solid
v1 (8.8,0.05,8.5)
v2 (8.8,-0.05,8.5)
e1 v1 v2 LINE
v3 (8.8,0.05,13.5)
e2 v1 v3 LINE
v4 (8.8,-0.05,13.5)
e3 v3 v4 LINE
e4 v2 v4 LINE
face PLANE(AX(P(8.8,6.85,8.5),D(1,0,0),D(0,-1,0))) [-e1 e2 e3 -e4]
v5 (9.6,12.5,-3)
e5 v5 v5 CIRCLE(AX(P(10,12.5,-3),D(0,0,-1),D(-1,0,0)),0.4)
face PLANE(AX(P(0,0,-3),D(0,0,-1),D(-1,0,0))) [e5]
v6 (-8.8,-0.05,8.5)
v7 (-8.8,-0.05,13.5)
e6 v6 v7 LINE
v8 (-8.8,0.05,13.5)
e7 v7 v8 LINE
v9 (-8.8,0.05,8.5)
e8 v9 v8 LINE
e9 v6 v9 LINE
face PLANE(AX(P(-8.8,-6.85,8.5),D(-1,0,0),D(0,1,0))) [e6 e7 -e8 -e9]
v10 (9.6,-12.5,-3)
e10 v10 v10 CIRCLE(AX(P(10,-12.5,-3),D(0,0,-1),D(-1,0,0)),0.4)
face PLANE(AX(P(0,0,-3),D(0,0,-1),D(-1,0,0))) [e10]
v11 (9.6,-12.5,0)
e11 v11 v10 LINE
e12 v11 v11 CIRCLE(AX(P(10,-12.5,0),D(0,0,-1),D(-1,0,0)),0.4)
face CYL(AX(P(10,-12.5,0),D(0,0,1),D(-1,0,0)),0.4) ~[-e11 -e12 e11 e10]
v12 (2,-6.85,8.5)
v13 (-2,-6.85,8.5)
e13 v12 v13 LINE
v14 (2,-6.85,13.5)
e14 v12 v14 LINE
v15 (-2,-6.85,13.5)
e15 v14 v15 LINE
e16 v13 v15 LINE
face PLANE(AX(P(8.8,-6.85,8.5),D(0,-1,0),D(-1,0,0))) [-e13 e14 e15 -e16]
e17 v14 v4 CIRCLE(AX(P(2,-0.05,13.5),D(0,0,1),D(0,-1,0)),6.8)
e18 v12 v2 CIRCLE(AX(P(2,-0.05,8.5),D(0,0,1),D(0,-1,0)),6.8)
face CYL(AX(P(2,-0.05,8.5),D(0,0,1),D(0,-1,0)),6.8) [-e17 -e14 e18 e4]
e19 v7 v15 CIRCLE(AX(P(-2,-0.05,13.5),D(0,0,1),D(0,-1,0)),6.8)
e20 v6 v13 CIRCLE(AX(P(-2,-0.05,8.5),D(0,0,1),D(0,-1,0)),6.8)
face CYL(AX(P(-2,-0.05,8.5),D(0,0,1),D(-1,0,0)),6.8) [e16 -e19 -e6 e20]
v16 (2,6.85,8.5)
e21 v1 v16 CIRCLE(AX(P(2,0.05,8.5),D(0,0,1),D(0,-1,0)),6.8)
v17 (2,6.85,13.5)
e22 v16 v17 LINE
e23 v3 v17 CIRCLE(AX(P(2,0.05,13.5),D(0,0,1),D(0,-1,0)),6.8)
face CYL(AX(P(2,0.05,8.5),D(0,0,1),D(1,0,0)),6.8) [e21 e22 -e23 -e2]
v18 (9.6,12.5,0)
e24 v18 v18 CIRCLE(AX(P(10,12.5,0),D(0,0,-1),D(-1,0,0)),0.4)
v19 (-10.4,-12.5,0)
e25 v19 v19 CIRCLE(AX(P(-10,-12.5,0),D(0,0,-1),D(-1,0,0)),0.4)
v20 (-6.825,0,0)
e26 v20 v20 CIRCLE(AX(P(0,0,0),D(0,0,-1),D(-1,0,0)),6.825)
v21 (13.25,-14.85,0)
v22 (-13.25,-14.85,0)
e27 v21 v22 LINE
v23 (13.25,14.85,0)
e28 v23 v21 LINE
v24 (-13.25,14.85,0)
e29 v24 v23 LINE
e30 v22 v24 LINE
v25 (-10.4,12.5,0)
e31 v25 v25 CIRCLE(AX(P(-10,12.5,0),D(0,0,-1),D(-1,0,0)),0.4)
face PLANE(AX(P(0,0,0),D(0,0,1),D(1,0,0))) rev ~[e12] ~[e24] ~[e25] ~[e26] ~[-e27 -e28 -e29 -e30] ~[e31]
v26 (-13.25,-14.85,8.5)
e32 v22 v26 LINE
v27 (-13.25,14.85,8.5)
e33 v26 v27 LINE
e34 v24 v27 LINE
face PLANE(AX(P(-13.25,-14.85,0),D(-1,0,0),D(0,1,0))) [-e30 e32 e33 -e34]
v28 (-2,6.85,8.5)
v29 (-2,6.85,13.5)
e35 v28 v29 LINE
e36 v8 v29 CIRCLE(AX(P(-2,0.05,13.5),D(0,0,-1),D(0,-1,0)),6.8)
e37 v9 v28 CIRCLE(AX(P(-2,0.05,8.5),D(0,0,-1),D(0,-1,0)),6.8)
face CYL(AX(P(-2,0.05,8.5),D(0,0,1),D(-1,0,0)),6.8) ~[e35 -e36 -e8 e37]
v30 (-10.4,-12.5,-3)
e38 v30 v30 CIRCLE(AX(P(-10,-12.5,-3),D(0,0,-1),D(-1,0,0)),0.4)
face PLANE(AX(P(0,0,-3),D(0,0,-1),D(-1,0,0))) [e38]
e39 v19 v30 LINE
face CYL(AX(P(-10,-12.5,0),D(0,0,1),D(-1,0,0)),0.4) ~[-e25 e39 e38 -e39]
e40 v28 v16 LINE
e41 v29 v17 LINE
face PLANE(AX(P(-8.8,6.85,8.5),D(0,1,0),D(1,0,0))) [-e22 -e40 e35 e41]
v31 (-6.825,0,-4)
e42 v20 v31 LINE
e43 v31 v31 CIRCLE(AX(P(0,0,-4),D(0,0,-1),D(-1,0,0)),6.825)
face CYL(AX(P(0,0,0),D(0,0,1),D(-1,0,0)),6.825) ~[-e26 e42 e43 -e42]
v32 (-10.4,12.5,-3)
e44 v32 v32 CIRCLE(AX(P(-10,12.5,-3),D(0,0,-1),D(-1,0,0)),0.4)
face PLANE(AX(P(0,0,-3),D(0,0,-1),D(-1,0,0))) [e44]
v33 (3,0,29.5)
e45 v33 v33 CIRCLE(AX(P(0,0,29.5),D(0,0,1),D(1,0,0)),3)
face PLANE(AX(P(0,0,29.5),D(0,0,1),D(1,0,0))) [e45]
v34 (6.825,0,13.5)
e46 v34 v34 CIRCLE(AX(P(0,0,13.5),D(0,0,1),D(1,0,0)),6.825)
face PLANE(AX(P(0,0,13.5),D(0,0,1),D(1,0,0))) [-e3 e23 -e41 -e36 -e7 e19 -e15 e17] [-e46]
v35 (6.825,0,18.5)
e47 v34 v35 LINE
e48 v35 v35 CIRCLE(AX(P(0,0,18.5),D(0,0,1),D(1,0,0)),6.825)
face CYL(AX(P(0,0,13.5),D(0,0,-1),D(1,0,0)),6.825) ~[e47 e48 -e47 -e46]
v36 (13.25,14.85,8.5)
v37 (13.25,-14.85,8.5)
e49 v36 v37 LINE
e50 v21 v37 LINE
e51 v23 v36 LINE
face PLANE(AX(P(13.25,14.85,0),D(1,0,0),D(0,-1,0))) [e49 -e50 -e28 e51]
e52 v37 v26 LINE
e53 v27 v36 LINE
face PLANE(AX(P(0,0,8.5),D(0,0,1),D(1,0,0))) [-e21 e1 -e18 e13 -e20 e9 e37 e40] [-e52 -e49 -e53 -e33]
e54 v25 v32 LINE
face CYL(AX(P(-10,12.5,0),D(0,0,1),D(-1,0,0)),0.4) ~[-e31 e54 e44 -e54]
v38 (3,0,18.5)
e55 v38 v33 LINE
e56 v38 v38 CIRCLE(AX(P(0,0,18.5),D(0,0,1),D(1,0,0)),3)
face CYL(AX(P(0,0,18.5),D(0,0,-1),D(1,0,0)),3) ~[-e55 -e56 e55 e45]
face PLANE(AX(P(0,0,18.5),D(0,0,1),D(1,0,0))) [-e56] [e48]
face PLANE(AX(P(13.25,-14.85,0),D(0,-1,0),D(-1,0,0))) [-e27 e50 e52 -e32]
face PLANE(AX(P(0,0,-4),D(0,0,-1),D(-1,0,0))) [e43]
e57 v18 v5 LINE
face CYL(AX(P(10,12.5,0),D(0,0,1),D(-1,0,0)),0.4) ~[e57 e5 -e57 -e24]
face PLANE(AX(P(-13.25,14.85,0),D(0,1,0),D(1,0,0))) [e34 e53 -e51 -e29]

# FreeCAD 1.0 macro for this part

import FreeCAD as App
import Part
import Sketcher

V = App.Vector


def edges_at(feature, points):
    """Names of the edges that pass closest to the given points."""
    edges = feature.Shape.Edges
    near = lambda p: min(range(len(edges)), key=lambda i: edges[i].distToShape(Part.Vertex(*p))[0])
    return sorted({f"Edge{near(p) + 1}" for p in points})


def add_polygon(sketch, points):
    """Adds a closed chain of lines whose ends are joined by coincident constraints."""
    first, n = sketch.GeometryCount, len(points)
    for a, b in zip(points, points[1:] + points[:1]):
        sketch.addGeometry(Part.LineSegment(App.Vector(*a, 0), App.Vector(*b, 0)), False)
    for i in range(n):
        sketch.addConstraint(Sketcher.Constraint("Coincident", first + i, 2, first + (i + 1) % n, 1))

doc = App.newDocument("Part")
params = doc.addObject("Spreadsheet::Sheet", "Params")
for row, (alias, value) in enumerate([
    ("sketch1_width", "26.5 mm"),
    ("sketch1_height", "29.7 mm"),
    ("pad1_length", "8.5 mm"),
    ("sketch2_width", "17.6 mm"),
    ("sketch2_height", "13.7 mm"),
    ("pad2_length", "5 mm"),
    ("fillet_radius", "6.8 mm"),
    ("sketch3_diameter", "13.65 mm"),
    ("pad3_length", "5 mm"),
    ("sketch4_diameter", "6 mm"),
    ("pad4_length", "11 mm"),
    ("sketch5_diameter", "0.8 mm"),
    ("pad5_length", "3 mm"),
    ("sketch6_diameter", "13.65 mm"),
    ("pad6_length", "4 mm"),
], start=1):
    params.set(f"A{row}", alias)
    params.set(f"B{row}", "=" + value)
    params.setAlias(f"B{row}", alias)

body = doc.addObject("PartDesign::Body", "Body")

# Sketch on XY plane
sketch1 = body.newObject("Sketcher::SketchObject", "Sketch")
sketch1.AttachmentSupport = (doc.getObject("XY_Plane"), [""])
sketch1.MapMode = "FlatFace"
add_polygon(sketch1, [(13, 15), (-13, 15), (-13, -15), (13, -15)])  # lines 0-3
sketch1.addConstraint(Sketcher.Constraint("Horizontal", 0))
sketch1.addConstraint(Sketcher.Constraint("Vertical", 1))
sketch1.addConstraint(Sketcher.Constraint("Horizontal", 2))
sketch1.addConstraint(Sketcher.Constraint("Vertical", 3))
sketch1.addConstraint(Sketcher.Constraint("Symmetric", 0, 2, 2, 2, -1, 1))
sketch1.addConstraint(Sketcher.Constraint("DistanceX", 0, 2, 0, 1, 26.5))
sketch1.addConstraint(Sketcher.Constraint("DistanceY", 1, 2, 1, 1, 29.7))
sketch1.setExpression("Constraints[9]", "Params.sketch1_width")
sketch1.setExpression("Constraints[10]", "Params.sketch1_height")
pad1 = body.newObject("PartDesign::Pad", "Pad")
pad1.Profile = sketch1
pad1.setExpression("Length", "Params.pad1_length")

# Sketch on XY plane
sketch2 = body.newObject("Sketcher::SketchObject", "Sketch001")
sketch2.AttachmentSupport = (doc.getObject("XY_Plane"), [""])
sketch2.MapMode = "FlatFace"
sketch2.AttachmentOffset = App.Placement(V(0, 0, 8.5), App.Rotation())
add_polygon(sketch2, [(9, 7), (-9, 7), (-9, -7), (9, -7)])  # lines 0-3
sketch2.addConstraint(Sketcher.Constraint("Horizontal", 0))
sketch2.addConstraint(Sketcher.Constraint("Vertical", 1))
sketch2.addConstraint(Sketcher.Constraint("Horizontal", 2))
sketch2.addConstraint(Sketcher.Constraint("Vertical", 3))
sketch2.addConstraint(Sketcher.Constraint("Symmetric", 0, 2, 2, 2, -1, 1))
sketch2.addConstraint(Sketcher.Constraint("DistanceX", 0, 2, 0, 1, 17.6))
sketch2.addConstraint(Sketcher.Constraint("DistanceY", 1, 2, 1, 1, 13.7))
sketch2.setExpression("Constraints[9]", "Params.sketch2_width")
sketch2.setExpression("Constraints[10]", "Params.sketch2_height")
pad2 = body.newObject("PartDesign::Pad", "Pad001")
pad2.Profile = sketch2
pad2.setExpression("Length", "Params.pad2_length")
doc.recompute()

fillet = body.newObject("PartDesign::Fillet", "Fillet")
fillet.Base = (pad2, edges_at(pad2, [
    (8.8, 6.85, 11),
    (8.8, -6.85, 11),
    (-8.8, 6.85, 11),
    (-8.8, -6.85, 11),
]))
fillet.setExpression("Radius", "Params.fillet_radius")

# Sketch on XY plane
sketch3 = body.newObject("Sketcher::SketchObject", "Sketch002")
sketch3.AttachmentSupport = (doc.getObject("XY_Plane"), [""])
sketch3.MapMode = "FlatFace"
sketch3.AttachmentOffset = App.Placement(V(0, 0, 13.5), App.Rotation())
sketch3.addGeometry(Part.Circle(V(0, 0, 0), V(0, 0, 1), 7), False)
sketch3.addConstraint(Sketcher.Constraint("Coincident", 0, 3, -1, 1))
sketch3.addConstraint(Sketcher.Constraint("Diameter", 0, 13.65))
sketch3.setExpression("Constraints[1]", "Params.sketch3_diameter")
pad3 = body.newObject("PartDesign::Pad", "Pad002")
pad3.Profile = sketch3
pad3.setExpression("Length", "Params.pad3_length")

# Sketch on XY plane
sketch4 = body.newObject("Sketcher::SketchObject", "Sketch003")
sketch4.AttachmentSupport = (doc.getObject("XY_Plane"), [""])
sketch4.MapMode = "FlatFace"
sketch4.AttachmentOffset = App.Placement(V(0, 0, 18.5), App.Rotation())
sketch4.addGeometry(Part.Circle(V(0, 0, 0), V(0, 0, 1), 3), False)
sketch4.addConstraint(Sketcher.Constraint("Coincident", 0, 3, -1, 1))
sketch4.addConstraint(Sketcher.Constraint("Diameter", 0, 6.0))
sketch4.setExpression("Constraints[1]", "Params.sketch4_diameter")
pad4 = body.newObject("PartDesign::Pad", "Pad003")
pad4.Profile = sketch4
pad4.setExpression("Length", "Params.pad4_length")

# Sketch on XY plane
sketch5 = body.newObject("Sketcher::SketchObject", "Sketch004")
sketch5.AttachmentSupport = (doc.getObject("XY_Plane"), [""])
sketch5.MapMode = "FlatFace"
sketch5.addGeometry(Part.Circle(V(-10, 12.5, 0), V(0, 0, 1), 0.4), False)
sketch5.addGeometry(Part.Circle(V(10, -12.5, 0), V(0, 0, 1), 0.4), False)
sketch5.addGeometry(Part.Circle(V(-10, -12.5, 0), V(0, 0, 1), 0.4), False)
sketch5.addGeometry(Part.Circle(V(10, 12.5, 0), V(0, 0, 1), 0.4), False)
sketch5.addConstraint(Sketcher.Constraint("Equal", 0, 1))
sketch5.addConstraint(Sketcher.Constraint("Equal", 1, 2))
sketch5.addConstraint(Sketcher.Constraint("Equal", 2, 3))
sketch5.addConstraint(Sketcher.Constraint("Symmetric", 0, 3, 1, 3, -1, 1))
sketch5.addConstraint(Sketcher.Constraint("Symmetric", 2, 3, 3, 3, -1, 1))
sketch5.addConstraint(Sketcher.Constraint("Symmetric", 1, 3, 2, 3, -2))
sketch5.addConstraint(Sketcher.Constraint("Diameter", 0, 0.8))
sketch5.addConstraint(Sketcher.Constraint("DistanceX", 0, 3, 1, 3, 20.0))
sketch5.addConstraint(Sketcher.Constraint("DistanceY", 1, 3, 0, 3, 25.0))
sketch5.setExpression("Constraints[6]", "Params.sketch5_diameter")
pad5 = body.newObject("PartDesign::Pad", "Pad004")
pad5.Profile = sketch5
pad5.setExpression("Length", "Params.pad5_length")
pad5.Reversed = True

# Sketch on XY plane
sketch6 = body.newObject("Sketcher::SketchObject", "Sketch005")
sketch6.AttachmentSupport = (doc.getObject("XY_Plane"), [""])
sketch6.MapMode = "FlatFace"
sketch6.addGeometry(Part.Circle(V(0, 0, 0), V(0, 0, 1), 7), False)
sketch6.addConstraint(Sketcher.Constraint("Coincident", 0, 3, -1, 1))
sketch6.addConstraint(Sketcher.Constraint("Diameter", 0, 13.65))
sketch6.setExpression("Constraints[1]", "Params.sketch6_diameter")
pad6 = body.newObject("PartDesign::Pad", "Pad005")
pad6.Profile = sketch6
pad6.setExpression("Length", "Params.pad6_length")
pad6.Reversed = True

doc.recompute()
